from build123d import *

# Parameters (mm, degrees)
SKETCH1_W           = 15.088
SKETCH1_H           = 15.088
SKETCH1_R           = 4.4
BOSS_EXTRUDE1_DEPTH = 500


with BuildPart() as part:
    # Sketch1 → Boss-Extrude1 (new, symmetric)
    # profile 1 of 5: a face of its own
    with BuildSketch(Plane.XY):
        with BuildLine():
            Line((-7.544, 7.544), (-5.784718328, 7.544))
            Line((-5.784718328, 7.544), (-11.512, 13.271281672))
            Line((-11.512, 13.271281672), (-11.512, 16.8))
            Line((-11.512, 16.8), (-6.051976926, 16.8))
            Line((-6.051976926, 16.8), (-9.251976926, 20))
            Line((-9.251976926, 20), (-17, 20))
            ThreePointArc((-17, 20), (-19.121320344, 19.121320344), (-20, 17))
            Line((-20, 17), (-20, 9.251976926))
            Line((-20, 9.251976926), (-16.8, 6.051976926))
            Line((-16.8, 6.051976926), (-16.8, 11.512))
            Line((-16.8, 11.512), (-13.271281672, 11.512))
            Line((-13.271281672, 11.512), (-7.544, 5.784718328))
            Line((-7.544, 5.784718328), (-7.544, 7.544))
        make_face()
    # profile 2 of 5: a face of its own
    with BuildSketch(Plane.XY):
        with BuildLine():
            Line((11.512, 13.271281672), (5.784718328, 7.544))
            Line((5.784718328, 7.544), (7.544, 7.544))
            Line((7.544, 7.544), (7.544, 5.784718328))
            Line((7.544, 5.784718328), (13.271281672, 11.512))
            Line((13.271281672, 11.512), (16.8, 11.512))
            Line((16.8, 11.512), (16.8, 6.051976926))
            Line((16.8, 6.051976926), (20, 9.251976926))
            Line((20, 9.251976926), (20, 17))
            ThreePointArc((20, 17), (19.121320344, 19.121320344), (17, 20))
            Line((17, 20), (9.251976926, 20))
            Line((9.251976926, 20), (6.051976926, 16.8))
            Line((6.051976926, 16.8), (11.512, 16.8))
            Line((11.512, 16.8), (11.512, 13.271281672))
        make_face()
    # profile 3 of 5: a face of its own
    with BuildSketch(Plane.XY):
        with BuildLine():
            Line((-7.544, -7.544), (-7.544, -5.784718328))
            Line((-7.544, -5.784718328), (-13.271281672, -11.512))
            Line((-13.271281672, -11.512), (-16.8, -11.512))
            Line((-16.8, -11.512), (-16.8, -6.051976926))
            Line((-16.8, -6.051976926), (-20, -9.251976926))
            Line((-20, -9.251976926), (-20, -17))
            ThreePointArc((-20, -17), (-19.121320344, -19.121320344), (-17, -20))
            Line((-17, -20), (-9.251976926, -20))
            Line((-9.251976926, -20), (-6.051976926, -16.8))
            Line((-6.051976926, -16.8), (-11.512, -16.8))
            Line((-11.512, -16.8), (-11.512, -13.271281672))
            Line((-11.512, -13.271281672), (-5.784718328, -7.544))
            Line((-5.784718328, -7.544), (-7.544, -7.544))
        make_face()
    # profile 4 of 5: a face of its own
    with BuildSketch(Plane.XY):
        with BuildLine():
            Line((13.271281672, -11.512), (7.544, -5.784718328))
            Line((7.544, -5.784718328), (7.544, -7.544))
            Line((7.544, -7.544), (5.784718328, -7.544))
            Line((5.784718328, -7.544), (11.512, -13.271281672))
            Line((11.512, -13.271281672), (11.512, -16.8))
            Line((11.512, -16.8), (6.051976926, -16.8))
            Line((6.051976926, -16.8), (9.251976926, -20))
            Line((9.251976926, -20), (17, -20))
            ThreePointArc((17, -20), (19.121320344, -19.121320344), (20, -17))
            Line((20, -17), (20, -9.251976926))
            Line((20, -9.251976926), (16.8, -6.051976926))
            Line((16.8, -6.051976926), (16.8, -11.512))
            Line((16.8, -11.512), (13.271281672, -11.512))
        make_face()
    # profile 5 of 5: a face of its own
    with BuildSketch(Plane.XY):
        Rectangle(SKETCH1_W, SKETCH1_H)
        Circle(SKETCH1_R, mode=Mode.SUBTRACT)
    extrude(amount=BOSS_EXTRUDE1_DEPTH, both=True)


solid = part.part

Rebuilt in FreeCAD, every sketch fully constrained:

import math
import FreeCAD as App
import Part
import Sketcher

V = App.Vector

doc = App.newDocument("Part")
body = doc.addObject("PartDesign::Body", "Body")

# Sketch on XY plane
sketch1 = doc.addObject("Sketcher::SketchObject", "Sketch")
body.addObject(sketch1)
sketch1.AttachmentSupport = (doc.XY_Plane, [""])
sketch1.MapMode = "FlatFace"
sketch1.addGeometry(Part.LineSegment(V(-5.784718, 7.544, 0), V(-11.512, 13.271282, 0)), False)
sketch1.addGeometry(Part.LineSegment(V(-11.512, 13.271282, 0), V(-11.512, 16.8, 0)), False)
sketch1.addGeometry(Part.LineSegment(V(-11.512, 16.8, 0), V(-6.051977, 16.8, 0)), False)
sketch1.addGeometry(Part.LineSegment(V(-6.051977, 16.8, 0), V(-9.251977, 20, 0)), False)
sketch1.addGeometry(Part.LineSegment(V(-9.251977, 20, 0), V(-17, 20, 0)), False)
sketch1.addGeometry(Part.ArcOfCircle(Part.Circle(V(-17, 17, 0), V(0, 0, 1), 3), math.radians(90), math.radians(180)), False)
sketch1.addGeometry(Part.LineSegment(V(-20, 17, 0), V(-20, 9.251977, 0)), False)
sketch1.addGeometry(Part.LineSegment(V(-20, 9.251977, 0), V(-16.8, 6.051977, 0)), False)
sketch1.addGeometry(Part.LineSegment(V(-16.8, 6.051977, 0), V(-16.8, 11.512, 0)), False)
sketch1.addGeometry(Part.LineSegment(V(-16.8, 11.512, 0), V(-13.271282, 11.512, 0)), False)
sketch1.addGeometry(Part.LineSegment(V(-13.271282, 11.512, 0), V(-7.544, 5.784718, 0)), False)
sketch1.addGeometry(Part.LineSegment(V(-7.544, 5.784718, 0), V(-7.544, -5.784718, 0)), False)
sketch1.addGeometry(Part.LineSegment(V(-7.544, -5.784718, 0), V(-13.271282, -11.512, 0)), False)
sketch1.addGeometry(Part.LineSegment(V(-13.271282, -11.512, 0), V(-16.8, -11.512, 0)), False)
sketch1.addGeometry(Part.LineSegment(V(-16.8, -11.512, 0), V(-16.8, -6.051977, 0)), False)
sketch1.addGeometry(Part.LineSegment(V(-16.8, -6.051977, 0), V(-20, -9.251977, 0)), False)
sketch1.addGeometry(Part.LineSegment(V(-20, -9.251977, 0), V(-20, -17, 0)), False)
sketch1.addGeometry(Part.ArcOfCircle(Part.Circle(V(-17, -17, 0), V(0, 0, 1), 3), math.radians(180), math.radians(270)), False)
sketch1.addGeometry(Part.LineSegment(V(-17, -20, 0), V(-9.251977, -20, 0)), False)
sketch1.addGeometry(Part.LineSegment(V(-9.251977, -20, 0), V(-6.051977, -16.8, 0)), False)
sketch1.addGeometry(Part.LineSegment(V(-6.051977, -16.8, 0), V(-11.512, -16.8, 0)), False)
sketch1.addGeometry(Part.LineSegment(V(-11.512, -16.8, 0), V(-11.512, -13.271282, 0)), False)
sketch1.addGeometry(Part.LineSegment(V(-11.512, -13.271282, 0), V(-5.784718, -7.544, 0)), False)
sketch1.addGeometry(Part.LineSegment(V(-5.784718, -7.544, 0), V(5.784718, -7.544, 0)), False)
sketch1.addGeometry(Part.LineSegment(V(5.784718, -7.544, 0), V(11.512, -13.271282, 0)), False)
sketch1.addGeometry(Part.LineSegment(V(11.512, -13.271282, 0), V(11.512, -16.8, 0)), False)
sketch1.addGeometry(Part.LineSegment(V(11.512, -16.8, 0), V(6.051977, -16.8, 0)), False)
sketch1.addGeometry(Part.LineSegment(V(6.051977, -16.8, 0), V(9.251977, -20, 0)), False)
sketch1.addGeometry(Part.LineSegment(V(9.251977, -20, 0), V(17, -20, 0)), False)
sketch1.addGeometry(Part.ArcOfCircle(Part.Circle(V(17, -17, 0), V(0, 0, 1), 3), math.radians(-90), math.radians(0)), False)
sketch1.addGeometry(Part.LineSegment(V(20, -17, 0), V(20, -9.251977, 0)), False)
sketch1.addGeometry(Part.LineSegment(V(20, -9.251977, 0), V(16.8, -6.051977, 0)), False)
sketch1.addGeometry(Part.LineSegment(V(16.8, -6.051977, 0), V(16.8, -11.512, 0)), False)
sketch1.addGeometry(Part.LineSegment(V(16.8, -11.512, 0), V(13.271282, -11.512, 0)), False)
sketch1.addGeometry(Part.LineSegment(V(13.271282, -11.512, 0), V(7.544, -5.784718, 0)), False)
sketch1.addGeometry(Part.LineSegment(V(7.544, -5.784718, 0), V(7.544, 5.784718, 0)), False)
sketch1.addGeometry(Part.LineSegment(V(7.544, 5.784718, 0), V(13.271282, 11.512, 0)), False)
sketch1.addGeometry(Part.LineSegment(V(13.271282, 11.512, 0), V(16.8, 11.512, 0)), False)
sketch1.addGeometry(Part.LineSegment(V(16.8, 11.512, 0), V(16.8, 6.051977, 0)), False)
sketch1.addGeometry(Part.LineSegment(V(16.8, 6.051977, 0), V(20, 9.251977, 0)), False)
sketch1.addGeometry(Part.LineSegment(V(20, 9.251977, 0), V(20, 17, 0)), False)
sketch1.addGeometry(Part.ArcOfCircle(Part.Circle(V(17, 17, 0), V(0, 0, 1), 3), math.radians(0), math.radians(90)), False)
sketch1.addGeometry(Part.LineSegment(V(17, 20, 0), V(9.251977, 20, 0)), False)
sketch1.addGeometry(Part.LineSegment(V(9.251977, 20, 0), V(6.051977, 16.8, 0)), False)
sketch1.addGeometry(Part.LineSegment(V(6.051977, 16.8, 0), V(11.512, 16.8, 0)), False)
sketch1.addGeometry(Part.LineSegment(V(11.512, 16.8, 0), V(11.512, 13.271282, 0)), False)
sketch1.addGeometry(Part.LineSegment(V(11.512, 13.271282, 0), V(5.784718, 7.544, 0)), False)
sketch1.addGeometry(Part.LineSegment(V(5.784718, 7.544, 0), V(-5.784718, 7.544, 0)), False)
sketch1.addGeometry(Part.Circle(V(0, 0, 0), V(0, 0, 1), 4.4), False)
sketch1.addConstraint(Sketcher.Constraint("Coincident", 0, 2, 1, 1))
sketch1.addConstraint(Sketcher.Constraint("Coincident", 1, 2, 2, 1))
sketch1.addConstraint(Sketcher.Constraint("Coincident", 2, 2, 3, 1))
sketch1.addConstraint(Sketcher.Constraint("Coincident", 3, 2, 4, 1))
sketch1.addConstraint(Sketcher.Constraint("Tangent", 4, 2, 5, 1))
sketch1.addConstraint(Sketcher.Constraint("Tangent", 5, 2, 6, 1))
sketch1.addConstraint(Sketcher.Constraint("Coincident", 6, 2, 7, 1))
sketch1.addConstraint(Sketcher.Constraint("Coincident", 7, 2, 8, 1))
sketch1.addConstraint(Sketcher.Constraint("Coincident", 8, 2, 9, 1))
sketch1.addConstraint(Sketcher.Constraint("Coincident", 9, 2, 10, 1))
sketch1.addConstraint(Sketcher.Constraint("Coincident", 10, 2, 11, 1))
sketch1.addConstraint(Sketcher.Constraint("Coincident", 11, 2, 12, 1))
sketch1.addConstraint(Sketcher.Constraint("Coincident", 12, 2, 13, 1))
sketch1.addConstraint(Sketcher.Constraint("Coincident", 13, 2, 14, 1))
sketch1.addConstraint(Sketcher.Constraint("Coincident", 14, 2, 15, 1))
sketch1.addConstraint(Sketcher.Constraint("Coincident", 15, 2, 16, 1))
sketch1.addConstraint(Sketcher.Constraint("Tangent", 16, 2, 17, 1))
sketch1.addConstraint(Sketcher.Constraint("Tangent", 17, 2, 18, 1))
sketch1.addConstraint(Sketcher.Constraint("Coincident", 18, 2, 19, 1))
sketch1.addConstraint(Sketcher.Constraint("Coincident", 19, 2, 20, 1))
sketch1.addConstraint(Sketcher.Constraint("Coincident", 20, 2, 21, 1))
sketch1.addConstraint(Sketcher.Constraint("Coincident", 21, 2, 22, 1))
sketch1.addConstraint(Sketcher.Constraint("Coincident", 22, 2, 23, 1))
sketch1.addConstraint(Sketcher.Constraint("Coincident", 23, 2, 24, 1))
sketch1.addConstraint(Sketcher.Constraint("Coincident", 24, 2, 25, 1))
sketch1.addConstraint(Sketcher.Constraint("Coincident", 25, 2, 26, 1))
sketch1.addConstraint(Sketcher.Constraint("Coincident", 26, 2, 27, 1))
sketch1.addConstraint(Sketcher.Constraint("Coincident", 27, 2, 28, 1))
sketch1.addConstraint(Sketcher.Constraint("Tangent", 28, 2, 29, 1))
sketch1.addConstraint(Sketcher.Constraint("Tangent", 29, 2, 30, 1))
sketch1.addConstraint(Sketcher.Constraint("Coincident", 30, 2, 31, 1))
sketch1.addConstraint(Sketcher.Constraint("Coincident", 31, 2, 32, 1))
sketch1.addConstraint(Sketcher.Constraint("Coincident", 32, 2, 33, 1))
sketch1.addConstraint(Sketcher.Constraint("Coincident", 33, 2, 34, 1))
sketch1.addConstraint(Sketcher.Constraint("Coincident", 34, 2, 35, 1))
sketch1.addConstraint(Sketcher.Constraint("Coincident", 35, 2, 36, 1))
sketch1.addConstraint(Sketcher.Constraint("Coincident", 36, 2, 37, 1))
sketch1.addConstraint(Sketcher.Constraint("Coincident", 37, 2, 38, 1))
sketch1.addConstraint(Sketcher.Constraint("Coincident", 38, 2, 39, 1))
sketch1.addConstraint(Sketcher.Constraint("Coincident", 39, 2, 40, 1))
sketch1.addConstraint(Sketcher.Constraint("Tangent", 40, 2, 41, 1))
sketch1.addConstraint(Sketcher.Constraint("Tangent", 41, 2, 42, 1))
sketch1.addConstraint(Sketcher.Constraint("Coincident", 42, 2, 43, 1))
sketch1.addConstraint(Sketcher.Constraint("Coincident", 43, 2, 44, 1))
sketch1.addConstraint(Sketcher.Constraint("Coincident", 44, 2, 45, 1))
sketch1.addConstraint(Sketcher.Constraint("Coincident", 45, 2, 46, 1))
sketch1.addConstraint(Sketcher.Constraint("Coincident", 46, 2, 47, 1))
sketch1.addConstraint(Sketcher.Constraint("Coincident", 47, 2, 0, 1))
sketch1.addConstraint(Sketcher.Constraint("Vertical", 1))
sketch1.addConstraint(Sketcher.Constraint("Horizontal", 2))
sketch1.addConstraint(Sketcher.Constraint("Horizontal", 4))
sketch1.addConstraint(Sketcher.Constraint("Vertical", 6))
sketch1.addConstraint(Sketcher.Constraint("Vertical", 8))
sketch1.addConstraint(Sketcher.Constraint("Horizontal", 9))
sketch1.addConstraint(Sketcher.Constraint("Vertical", 11))
sketch1.addConstraint(Sketcher.Constraint("Horizontal", 13))
sketch1.addConstraint(Sketcher.Constraint("Vertical", 14))
sketch1.addConstraint(Sketcher.Constraint("Vertical", 16))
sketch1.addConstraint(Sketcher.Constraint("Horizontal", 18))
sketch1.addConstraint(Sketcher.Constraint("Horizontal", 20))
sketch1.addConstraint(Sketcher.Constraint("Vertical", 21))
sketch1.addConstraint(Sketcher.Constraint("Horizontal", 23))
sketch1.addConstraint(Sketcher.Constraint("Vertical", 25))
sketch1.addConstraint(Sketcher.Constraint("Horizontal", 26))
sketch1.addConstraint(Sketcher.Constraint("Horizontal", 28))
sketch1.addConstraint(Sketcher.Constraint("Vertical", 30))
sketch1.addConstraint(Sketcher.Constraint("Vertical", 32))
sketch1.addConstraint(Sketcher.Constraint("Horizontal", 33))
sketch1.addConstraint(Sketcher.Constraint("Vertical", 35))
sketch1.addConstraint(Sketcher.Constraint("Horizontal", 37))
sketch1.addConstraint(Sketcher.Constraint("Vertical", 38))
sketch1.addConstraint(Sketcher.Constraint("Vertical", 40))
sketch1.addConstraint(Sketcher.Constraint("Horizontal", 42))
sketch1.addConstraint(Sketcher.Constraint("Horizontal", 44))
sketch1.addConstraint(Sketcher.Constraint("Vertical", 45))
sketch1.addConstraint(Sketcher.Constraint("Horizontal", 47))
sketch1.addConstraint(Sketcher.Constraint("Coincident", 48, 3, -1, 1))
sketch1.addConstraint(Sketcher.Constraint("Equal", 5, 17))
sketch1.addConstraint(Sketcher.Constraint("Equal", 17, 29))
sketch1.addConstraint(Sketcher.Constraint("Equal", 29, 41))
sketch1.addConstraint(Sketcher.Constraint("Symmetric", 5, 3, 29, 3, -1, 1))
sketch1.addConstraint(Sketcher.Constraint("Symmetric", 17, 3, 41, 3, -1, 1))
sketch1.addConstraint(Sketcher.Constraint("Symmetric", 0, 2, 24, 2, -1, 1))
sketch1.addConstraint(Sketcher.Constraint("Symmetric", 2, 2, 26, 2, -1, 1))
sketch1.addConstraint(Sketcher.Constraint("Symmetric", 7, 2, 31, 2, -1, 1))
sketch1.addConstraint(Sketcher.Constraint("Symmetric", 9, 2, 33, 2, -1, 1))
sketch1.addConstraint(Sketcher.Constraint("Symmetric", 10, 2, 34, 2, -1, 1))
sketch1.addConstraint(Sketcher.Constraint("Symmetric", 12, 2, 36, 2, -1, 1))
sketch1.addConstraint(Sketcher.Constraint("Symmetric", 14, 2, 38, 2, -1, 1))
sketch1.addConstraint(Sketcher.Constraint("Symmetric", 19, 2, 43, 2, -1, 1))
sketch1.addConstraint(Sketcher.Constraint("Symmetric", 21, 2, 45, 2, -1, 1))
sketch1.addConstraint(Sketcher.Constraint("Symmetric", 22, 2, 46, 2, -1, 1))
sketch1.addConstraint(Sketcher.Constraint("Symmetric", 17, 3, 29, 3, -2))
sketch1.addConstraint(Sketcher.Constraint("Symmetric", 21, 2, 24, 2, -2))
sketch1.addConstraint(Sketcher.Constraint("Symmetric", 19, 2, 26, 2, -2))
sketch1.addConstraint(Sketcher.Constraint("Symmetric", 14, 2, 31, 2, -2))
sketch1.addConstraint(Sketcher.Constraint("Symmetric", 12, 2, 33, 2, -2))
sketch1.addConstraint(Sketcher.Constraint("Parallel", 0, 3))
sketch1.addConstraint(Sketcher.Constraint("Parallel", 3, 7))
sketch1.addConstraint(Sketcher.Constraint("Parallel", 7, 10))
sketch1.addConstraint(Sketcher.Constraint("Perpendicular", 10, 12))
sketch1.addConstraint(Sketcher.Constraint("Parallel", 12, 15))
sketch1.addConstraint(Sketcher.Constraint("Parallel", 15, 19))
sketch1.addConstraint(Sketcher.Constraint("Parallel", 19, 22))
sketch1.addConstraint(Sketcher.Constraint("Perpendicular", 22, 24))
sketch1.addConstraint(Sketcher.Constraint("Parallel", 24, 27))
sketch1.addConstraint(Sketcher.Constraint("Parallel", 27, 31))
sketch1.addConstraint(Sketcher.Constraint("Perpendicular", 34, 36))
sketch1.addConstraint(Sketcher.Constraint("Parallel", 36, 39))
sketch1.addConstraint(Sketcher.Constraint("Parallel", 39, 43))
sketch1.addConstraint(Sketcher.Constraint("Horizontal", 15, 2, 30, 2))
sketch1.addConstraint(Sketcher.Constraint("Equal", 37, 1))
sketch1.addConstraint(Sketcher.Constraint("Equal", 42, 6))
sketch1.addConstraint(Sketcher.Constraint("Equal", 44, 8))
sketch1.addConstraint(Sketcher.Constraint("Equal", 47, 11))
sketch1.addConstraint(Sketcher.Constraint("Equal", 3, 7))
sketch1.addConstraint(Sketcher.Constraint("Equal", 0, 10))
sketch1.addConstraint(Sketcher.Constraint("Radius", 5, 3.0))
sketch1.addConstraint(Sketcher.Constraint("Diameter", 48, 8.8))
sketch1.addConstraint(Sketcher.Constraint("DistanceX", 5, 3, -1, 1, 17.0))
sketch1.addConstraint(Sketcher.Constraint("DistanceY", -1, 1, 1, 2, 16.8))
sketch1.addConstraint(Sketcher.Constraint("DistanceX", 0, 2, -1, 1, 11.512))
sketch1.addConstraint(Sketcher.Constraint("DistanceX", 10, 2, -1, 1, 7.544))
sketch1.addConstraint(Sketcher.Constraint("Distance", 0, 8.099599))
sketch1.addConstraint(Sketcher.Constraint("DistanceX", 2, 1, 2, 2, 5.460023))
pad1 = doc.addObject("PartDesign::Pad", "Pad")
body.addObject(pad1)
pad1.Profile = sketch1
pad1.Length = 1000
pad1.Midplane = True

doc.recompute()
